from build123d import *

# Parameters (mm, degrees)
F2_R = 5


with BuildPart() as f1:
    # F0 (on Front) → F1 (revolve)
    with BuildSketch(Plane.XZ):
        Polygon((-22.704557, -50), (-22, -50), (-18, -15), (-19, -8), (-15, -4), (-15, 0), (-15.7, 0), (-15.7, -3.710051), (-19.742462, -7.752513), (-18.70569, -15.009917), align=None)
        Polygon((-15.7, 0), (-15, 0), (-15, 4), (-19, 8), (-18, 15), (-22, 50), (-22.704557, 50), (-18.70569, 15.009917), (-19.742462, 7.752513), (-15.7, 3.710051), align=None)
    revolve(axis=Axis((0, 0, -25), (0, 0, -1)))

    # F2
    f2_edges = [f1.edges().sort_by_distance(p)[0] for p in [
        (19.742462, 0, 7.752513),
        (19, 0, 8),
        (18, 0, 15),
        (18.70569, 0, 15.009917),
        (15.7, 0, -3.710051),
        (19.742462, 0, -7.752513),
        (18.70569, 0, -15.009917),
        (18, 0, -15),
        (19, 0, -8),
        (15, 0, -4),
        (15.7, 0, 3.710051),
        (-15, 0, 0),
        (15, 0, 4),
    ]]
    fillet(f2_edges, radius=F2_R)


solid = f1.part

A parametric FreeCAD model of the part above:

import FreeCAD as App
import Part
import Sketcher
from FreeCAD import Vector


def edges_at(feature, points):
    """Names of the edges that pass closest to the given points."""
    edges = feature.Shape.Edges
    near = lambda p: min(range(len(edges)), key=lambda i: edges[i].distToShape(Part.Vertex(*p))[0])
    return sorted({f"Edge{near(p) + 1}" for p in points})

doc = App.newDocument("Part")
body = doc.addObject("PartDesign::Body", "Body")

# Sketch on XZ plane
sketch1 = body.newObject("Sketcher::SketchObject", "Sketch")
sketch1.AttachmentSupport = (doc.getObject("XZ_Plane"), [""])
sketch1.MapMode = "FlatFace"
sketch1.addGeometry([
    Part.LineSegment(Vector(-22.704557, -50, 0), Vector(-22, -50, 0)),  # 0
    Part.LineSegment(Vector(-22, -50, 0), Vector(-18, -15, 0)),  # 1
    Part.LineSegment(Vector(-18, -15, 0), Vector(-19, -8, 0)),  # 2
    Part.LineSegment(Vector(-19, -8, 0), Vector(-15, -4, 0)),  # 3
    Part.LineSegment(Vector(-15, -4, 0), Vector(-15, 4, 0)),  # 4
    Part.LineSegment(Vector(-15, 4, 0), Vector(-19, 8, 0)),  # 5
    Part.LineSegment(Vector(-19, 8, 0), Vector(-18, 15, 0)),  # 6
    Part.LineSegment(Vector(-18, 15, 0), Vector(-22, 50, 0)),  # 7
    Part.LineSegment(Vector(-22, 50, 0), Vector(-22.704557, 50, 0)),  # 8
    Part.LineSegment(Vector(-22.704557, 50, 0), Vector(-18.70569, 15.009917, 0)),  # 9
    Part.LineSegment(Vector(-18.70569, 15.009917, 0), Vector(-19.742462, 7.752513, 0)),  # 10
    Part.LineSegment(Vector(-19.742462, 7.752513, 0), Vector(-15.7, 3.710051, 0)),  # 11
    Part.LineSegment(Vector(-15.7, 3.710051, 0), Vector(-15.7, -3.710051, 0)),  # 12
    Part.LineSegment(Vector(-15.7, -3.710051, 0), Vector(-19.742462, -7.752513, 0)),  # 13
    Part.LineSegment(Vector(-19.742462, -7.752513, 0), Vector(-18.70569, -15.009917, 0)),  # 14
    Part.LineSegment(Vector(-18.70569, -15.009917, 0), Vector(-22.704557, -50, 0)),  # 15
], False)
sketch1.addConstraint([
    Sketcher.Constraint("Coincident", 0, 2, 1, 1),
    Sketcher.Constraint("Coincident", 1, 2, 2, 1),
    Sketcher.Constraint("Coincident", 2, 2, 3, 1),
    Sketcher.Constraint("Coincident", 3, 2, 4, 1),
    Sketcher.Constraint("Coincident", 4, 2, 5, 1),
    Sketcher.Constraint("Coincident", 5, 2, 6, 1),
    Sketcher.Constraint("Coincident", 6, 2, 7, 1),
    Sketcher.Constraint("Coincident", 7, 2, 8, 1),
    Sketcher.Constraint("Coincident", 8, 2, 9, 1),
    Sketcher.Constraint("Coincident", 9, 2, 10, 1),
    Sketcher.Constraint("Coincident", 10, 2, 11, 1),
    Sketcher.Constraint("Coincident", 11, 2, 12, 1),
    Sketcher.Constraint("Coincident", 12, 2, 13, 1),
    Sketcher.Constraint("Coincident", 13, 2, 14, 1),
    Sketcher.Constraint("Coincident", 14, 2, 15, 1),
    Sketcher.Constraint("Coincident", 15, 2, 0, 1),
    Sketcher.Constraint("Horizontal", 0),
    Sketcher.Constraint("Vertical", 4),
    Sketcher.Constraint("Horizontal", 8),
    Sketcher.Constraint("Vertical", 12),
    Sketcher.Constraint("Symmetric", 2, 2, 5, 2, -1),
    Sketcher.Constraint("Symmetric", 1, 2, 6, 2, -1),
    Sketcher.Constraint("Symmetric", 0, 2, 7, 2, -1),
    Sketcher.Constraint("Symmetric", 10, 2, 13, 2, -1),
    Sketcher.Constraint("Symmetric", 9, 2, 14, 2, -1),
    Sketcher.Constraint("Perpendicular", 3, 5),
    Sketcher.Constraint("Parallel", 7, 9),
    Sketcher.Constraint("Parallel", 6, 10),
    Sketcher.Constraint("Parallel", 5, 11),
    Sketcher.Constraint("Perpendicular", 11, 13),
    Sketcher.Constraint("Parallel", 1, 15),
    Sketcher.Constraint("Equal", 3, 5),
    Sketcher.Constraint("DistanceY", 4, 1, 4, 2, 8.0),
    Sketcher.Constraint("DistanceX", 0, 2, -1, 1, 22.0),
    Sketcher.Constraint("DistanceY", 0, 2, -1, 1, 50.0),
    Sketcher.Constraint("DistanceX", 1, 2, -1, 1, 18.0),
    Sketcher.Constraint("DistanceY", 1, 2, -1, 1, 15.0),
    Sketcher.Constraint("DistanceX", 2, 2, -1, 1, 19.0),
    Sketcher.Constraint("DistanceY", 2, 2, -1, 1, 8.0),
    Sketcher.Constraint("DistanceX", 11, 2, -1, 1, 15.7),
    Sketcher.Constraint("Distance", 9, 35.217848),
    Sketcher.Constraint("DistanceX", 0, 1, 0, 2, 0.704557),
    Sketcher.Constraint("DistanceY", 12, 2, 12, 1, 7.420102),
])
revolution = body.newObject("PartDesign::Revolution", "Revolution")
revolution.Profile = sketch1
revolution.ReferenceAxis = (sketch1, ["V_Axis"])
revolution.Angle = 360
doc.recompute()

fillet = body.newObject("PartDesign::Fillet", "Fillet")
fillet.Base = (revolution, edges_at(revolution, [
    (19.742, 0, 7.753),
    (19, 0, 8),
    (18, 0, 15),
    (18.706, 0, 15.01),
    (15.7, 0, -3.71),
    (19.742, 0, -7.753),
    (18.706, 0, -15.01),
    (18, 0, -15),
    (19, 0, -8),
    (15, 0, -4),
    (15.7, 0, 3.71),
    (-15, 0, 0),
    (15, 0, 4),
]))
fillet.Radius = 5

doc.recompute()
